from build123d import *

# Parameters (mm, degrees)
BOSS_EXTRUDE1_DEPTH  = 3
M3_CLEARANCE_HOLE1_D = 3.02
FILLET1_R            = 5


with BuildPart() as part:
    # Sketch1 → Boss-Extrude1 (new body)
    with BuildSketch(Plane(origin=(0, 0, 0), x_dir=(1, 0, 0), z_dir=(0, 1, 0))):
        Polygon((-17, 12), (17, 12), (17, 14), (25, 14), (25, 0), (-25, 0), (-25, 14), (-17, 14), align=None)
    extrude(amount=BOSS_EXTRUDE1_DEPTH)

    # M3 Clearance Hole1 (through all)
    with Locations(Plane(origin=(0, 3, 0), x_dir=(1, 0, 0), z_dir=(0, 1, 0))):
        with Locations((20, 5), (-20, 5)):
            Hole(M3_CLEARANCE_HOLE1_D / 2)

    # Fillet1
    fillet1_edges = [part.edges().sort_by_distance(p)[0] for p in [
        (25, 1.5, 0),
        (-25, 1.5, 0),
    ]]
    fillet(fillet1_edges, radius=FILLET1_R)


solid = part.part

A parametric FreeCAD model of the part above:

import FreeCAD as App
import Part
import Sketcher


def edges_at(feature, points):
    """Names of the edges that pass closest to the given points."""
    edges = feature.Shape.Edges
    near = lambda p: min(range(len(edges)), key=lambda i: edges[i].distToShape(Part.Vertex(*p))[0])
    return sorted({f"Edge{near(p) + 1}" for p in points})

doc = App.newDocument("Part")
body = doc.addObject("PartDesign::Body", "Body")

# Sketch on XZ plane
sketch1 = body.newObject("Sketcher::SketchObject", "Sketch")
sketch1.AttachmentSupport = (doc.getObject("XZ_Plane"), [""])
sketch1.MapMode = "FlatFace"
sketch1.addGeometry([
    Part.LineSegment(App.Vector(17, -12, 0), App.Vector(-17, -12, 0)),  # 0
    Part.LineSegment(App.Vector(-17, -12, 0), App.Vector(-17, -14, 0)),  # 1
    Part.LineSegment(App.Vector(-17, -14, 0), App.Vector(-25, -14, 0)),  # 2
    Part.LineSegment(App.Vector(-25, -14, 0), App.Vector(-25, 0, 0)),  # 3
    Part.LineSegment(App.Vector(-25, 0, 0), App.Vector(25, 0, 0)),  # 4
    Part.LineSegment(App.Vector(25, 0, 0), App.Vector(25, -14, 0)),  # 5
    Part.LineSegment(App.Vector(25, -14, 0), App.Vector(17, -14, 0)),  # 6
    Part.LineSegment(App.Vector(17, -14, 0), App.Vector(17, -12, 0)),  # 7
], False)
sketch1.addConstraint([
    Sketcher.Constraint("Coincident", 0, 2, 1, 1),
    Sketcher.Constraint("Coincident", 1, 2, 2, 1),
    Sketcher.Constraint("Coincident", 2, 2, 3, 1),
    Sketcher.Constraint("Coincident", 3, 2, 4, 1),
    Sketcher.Constraint("Coincident", 4, 2, 5, 1),
    Sketcher.Constraint("Coincident", 5, 2, 6, 1),
    Sketcher.Constraint("Coincident", 6, 2, 7, 1),
    Sketcher.Constraint("Coincident", 7, 2, 0, 1),
    Sketcher.Constraint("Horizontal", 0),
    Sketcher.Constraint("Vertical", 1),
    Sketcher.Constraint("Horizontal", 2),
    Sketcher.Constraint("Vertical", 3),
    Sketcher.Constraint("Horizontal", 4),
    Sketcher.Constraint("Vertical", 5),
    Sketcher.Constraint("Horizontal", 6),
    Sketcher.Constraint("Vertical", 7),
    Sketcher.Constraint("Symmetric", 3, 2, 4, 2, -1, 1),
    Sketcher.Constraint("Symmetric", 1, 2, 6, 2, -2),
    Sketcher.Constraint("DistanceX", 0, 2, 0, 1, 34.0),
    Sketcher.Constraint("DistanceX", 2, 2, 2, 1, 8.0),
    Sketcher.Constraint("DistanceY", 1, 2, 1, 1, 2.0),
    Sketcher.Constraint("DistanceY", 3, 1, 3, 2, 14.0),
])
pad1 = body.newObject("PartDesign::Pad", "Pad")
pad1.Profile = sketch1
pad1.Length = 3
pad1.Reversed = True

# Sketch on XZ plane
sketch2 = body.newObject("Sketcher::SketchObject", "Sketch001")
sketch2.AttachmentSupport = (doc.getObject("XZ_Plane"), [""])
sketch2.MapMode = "FlatFace"
sketch2.AttachmentOffset = App.Placement(App.Vector(0, 0, -3), App.Rotation())
sketch2.addGeometry([
    Part.Circle(App.Vector(20, -5, 0), App.Vector(0, 0, 1), 1.5),
    Part.Circle(App.Vector(-20, -5, 0), App.Vector(0, 0, 1), 1.5),
], False)
sketch2.addConstraint([
    Sketcher.Constraint("Equal", 0, 1),
    Sketcher.Constraint("Symmetric", 0, 3, 1, 3, -2),
    Sketcher.Constraint("Diameter", 0, 3.02),
    Sketcher.Constraint("DistanceX", -1, 1, 0, 3, 20.0),
    Sketcher.Constraint("DistanceY", 0, 3, -1, 1, 5.0),
])
doc.recompute()
hole = body.newObject("PartDesign::Hole", "Hole")
hole.Profile = sketch2
hole.ThreadType = "None"
hole.Diameter = 3.02
hole.DepthType = "ThroughAll"
hole.Reversed = True
doc.recompute()

fillet = body.newObject("PartDesign::Fillet", "Fillet")
fillet.Base = (hole, edges_at(hole, [(25, 1.5, 0), (-25, 1.5, 0)]))
fillet.Radius = 5

doc.recompute()
